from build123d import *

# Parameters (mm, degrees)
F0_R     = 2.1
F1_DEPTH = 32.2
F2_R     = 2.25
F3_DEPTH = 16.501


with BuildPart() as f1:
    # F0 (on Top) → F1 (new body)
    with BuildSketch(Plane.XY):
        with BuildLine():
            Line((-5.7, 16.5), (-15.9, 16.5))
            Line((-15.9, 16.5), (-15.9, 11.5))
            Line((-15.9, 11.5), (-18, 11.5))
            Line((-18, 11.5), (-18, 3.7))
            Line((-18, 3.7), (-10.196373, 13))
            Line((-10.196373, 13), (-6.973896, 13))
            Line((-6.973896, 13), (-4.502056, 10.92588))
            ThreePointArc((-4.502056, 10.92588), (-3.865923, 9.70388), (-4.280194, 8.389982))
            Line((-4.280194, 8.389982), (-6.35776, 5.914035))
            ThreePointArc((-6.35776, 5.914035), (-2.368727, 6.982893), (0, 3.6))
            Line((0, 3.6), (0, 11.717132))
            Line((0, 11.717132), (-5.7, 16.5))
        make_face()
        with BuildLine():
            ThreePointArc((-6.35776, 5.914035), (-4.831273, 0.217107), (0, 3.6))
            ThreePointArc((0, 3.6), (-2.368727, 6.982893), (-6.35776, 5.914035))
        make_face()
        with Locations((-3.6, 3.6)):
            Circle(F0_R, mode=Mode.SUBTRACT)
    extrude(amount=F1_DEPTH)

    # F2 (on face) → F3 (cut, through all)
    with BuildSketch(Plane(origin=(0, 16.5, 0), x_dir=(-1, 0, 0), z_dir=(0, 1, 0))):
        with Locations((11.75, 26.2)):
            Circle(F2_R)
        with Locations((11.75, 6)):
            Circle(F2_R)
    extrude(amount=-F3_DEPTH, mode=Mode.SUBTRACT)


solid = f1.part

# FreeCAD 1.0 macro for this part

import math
import FreeCAD as App
import Part
import Sketcher

V = App.Vector
Q = App.Units.Quantity

doc = App.newDocument("Part")
body = doc.addObject("PartDesign::Body", "Body")

# Sketch on XY plane
sketch1 = doc.addObject("Sketcher::SketchObject", "Sketch")
body.addObject(sketch1)
sketch1.AttachmentSupport = (doc.XY_Plane, [""])
sketch1.MapMode = "FlatFace"
sketch1.addGeometry([
    Part.LineSegment(V(-5.7, 16.5, 0), V(-15.9, 16.5, 0)),  # 0
    Part.LineSegment(V(-15.9, 16.5, 0), V(-15.9, 11.5, 0)),  # 1
    Part.LineSegment(V(-15.9, 11.5, 0), V(-18, 11.5, 0)),  # 2
    Part.LineSegment(V(-18, 11.5, 0), V(-18, 3.7, 0)),  # 3
    Part.LineSegment(V(-18, 3.7, 0), V(-10.2, 13, 0)),  # 4
    Part.LineSegment(V(-10.2, 13, 0), V(-7, 13, 0)),  # 5
    Part.LineSegment(V(-7, 13, 0), V(-4.5, 10.9, 0)),  # 6
    Part.ArcOfCircle(Part.Circle(V(-5.7, 9.5, 0), V(0, 0, 1), 1.8), math.radians(-40), math.radians(50)),  # 7
    Part.LineSegment(V(-4.3, 8.4, 0), V(-6.4, 5.9, 0)),  # 8
    Part.ArcOfCircle(Part.Circle(V(-3.6, 3.6, 0), V(0, 0, 1), 3.6), math.radians(140), math.radians(360)),  # 9
    Part.LineSegment(V(0, 3.6, 0), V(0, 11.7, 0)),  # 10
    Part.LineSegment(V(0, 11.7, 0), V(-5.7, 16.5, 0)),  # 11
    Part.Circle(V(-3.6, 3.6, 0), V(0, 0, 1), 2.1),  # 12
], False)
sketch1.addConstraint([
    Sketcher.Constraint("Coincident", 0, 2, 1, 1),
    Sketcher.Constraint("Coincident", 1, 2, 2, 1),
    Sketcher.Constraint("Coincident", 2, 2, 3, 1),
    Sketcher.Constraint("Coincident", 3, 2, 4, 1),
    Sketcher.Constraint("Coincident", 4, 2, 5, 1),
    Sketcher.Constraint("Coincident", 5, 2, 6, 1),
    Sketcher.Constraint("Tangent", 6, 2, 7, 2),
    Sketcher.Constraint("Tangent", 7, 1, 8, 1),
    Sketcher.Constraint("Tangent", 8, 2, 9, 1),
    Sketcher.Constraint("Tangent", 9, 2, 10, 1),
    Sketcher.Constraint("Coincident", 10, 2, 11, 1),
    Sketcher.Constraint("Coincident", 11, 2, 0, 1),
    Sketcher.Constraint("Horizontal", 0),
    Sketcher.Constraint("Vertical", 1),
    Sketcher.Constraint("Horizontal", 2),
    Sketcher.Constraint("Vertical", 3),
    Sketcher.Constraint("Horizontal", 5),
    Sketcher.Constraint("Vertical", 10),
    Sketcher.Constraint("Coincident", 12, 3, 9, 3),
    Sketcher.Constraint("PointOnObject", 9, 2, -2),
    Sketcher.Constraint("Perpendicular", 4, 6),
    Sketcher.Constraint("Perpendicular", 6, 8),
    Sketcher.Constraint("Perpendicular", 8, 11),
    Sketcher.Constraint("Diameter", 12, 4.2),
    Sketcher.Constraint("Radius", 7, 1.799999),
    Sketcher.Constraint("Radius", 9, 3.6),
    Sketcher.Constraint("DistanceY", 1, 2, 1, 1, 5.0),
    Sketcher.Constraint("Angle", 4, Q("49.999998 deg")),
    Sketcher.Constraint("DistanceX", 0, 2, 0, 1, 10.2),
    Sketcher.Constraint("DistanceX", 2, 2, 2, 1, 2.1),
    Sketcher.Constraint("DistanceY", 3, 2, 3, 1, 7.8),
    Sketcher.Constraint("DistanceX", 2, 2, -1, 1, 18.0),
    Sketcher.Constraint("DistanceY", -1, 1, 4, 2, 13.0),
    Sketcher.Constraint("DistanceY", -1, 1, 9, 3, 3.6),
    Sketcher.Constraint("DistanceY", -1, 1, 0, 2, 16.5),
    Sketcher.Constraint("DistanceY", -1, 1, 7, 3, 9.547),
])
pad1 = doc.addObject("PartDesign::Pad", "Pad")
body.addObject(pad1)
pad1.Profile = sketch1
pad1.Length = 32.2

# Sketch on XZ plane
sketch2 = doc.addObject("Sketcher::SketchObject", "Sketch001")
body.addObject(sketch2)
sketch2.AttachmentSupport = (doc.XZ_Plane, [""])
sketch2.MapMode = "FlatFace"
sketch2.AttachmentOffset = App.Placement(V(0, 0, -16.5), App.Rotation())
sketch2.addGeometry([
    Part.Circle(V(-11.8, 26.2, 0), V(0, 0, 1), 2.2),
    Part.Circle(V(-11.8, 6, 0), V(0, 0, 1), 2.2),
], False)
sketch2.addConstraint([
    Sketcher.Constraint("Equal", 0, 1),
    Sketcher.Constraint("Vertical", 0, 3, 1, 3),
    Sketcher.Constraint("Diameter", 0, 4.5),
    Sketcher.Constraint("DistanceY", -1, 1, 1, 3, 6.0),
    Sketcher.Constraint("DistanceY", -1, 1, 0, 3, 26.2),
    Sketcher.Constraint("DistanceX", 0, 3, -1, 1, 11.75),
])
pocket1 = doc.addObject("PartDesign::Pocket", "Pocket")
body.addObject(pocket1)
pocket1.Profile = sketch2
pocket1.Type = "ThroughAll"
pocket1.Reversed = True

doc.recompute()
